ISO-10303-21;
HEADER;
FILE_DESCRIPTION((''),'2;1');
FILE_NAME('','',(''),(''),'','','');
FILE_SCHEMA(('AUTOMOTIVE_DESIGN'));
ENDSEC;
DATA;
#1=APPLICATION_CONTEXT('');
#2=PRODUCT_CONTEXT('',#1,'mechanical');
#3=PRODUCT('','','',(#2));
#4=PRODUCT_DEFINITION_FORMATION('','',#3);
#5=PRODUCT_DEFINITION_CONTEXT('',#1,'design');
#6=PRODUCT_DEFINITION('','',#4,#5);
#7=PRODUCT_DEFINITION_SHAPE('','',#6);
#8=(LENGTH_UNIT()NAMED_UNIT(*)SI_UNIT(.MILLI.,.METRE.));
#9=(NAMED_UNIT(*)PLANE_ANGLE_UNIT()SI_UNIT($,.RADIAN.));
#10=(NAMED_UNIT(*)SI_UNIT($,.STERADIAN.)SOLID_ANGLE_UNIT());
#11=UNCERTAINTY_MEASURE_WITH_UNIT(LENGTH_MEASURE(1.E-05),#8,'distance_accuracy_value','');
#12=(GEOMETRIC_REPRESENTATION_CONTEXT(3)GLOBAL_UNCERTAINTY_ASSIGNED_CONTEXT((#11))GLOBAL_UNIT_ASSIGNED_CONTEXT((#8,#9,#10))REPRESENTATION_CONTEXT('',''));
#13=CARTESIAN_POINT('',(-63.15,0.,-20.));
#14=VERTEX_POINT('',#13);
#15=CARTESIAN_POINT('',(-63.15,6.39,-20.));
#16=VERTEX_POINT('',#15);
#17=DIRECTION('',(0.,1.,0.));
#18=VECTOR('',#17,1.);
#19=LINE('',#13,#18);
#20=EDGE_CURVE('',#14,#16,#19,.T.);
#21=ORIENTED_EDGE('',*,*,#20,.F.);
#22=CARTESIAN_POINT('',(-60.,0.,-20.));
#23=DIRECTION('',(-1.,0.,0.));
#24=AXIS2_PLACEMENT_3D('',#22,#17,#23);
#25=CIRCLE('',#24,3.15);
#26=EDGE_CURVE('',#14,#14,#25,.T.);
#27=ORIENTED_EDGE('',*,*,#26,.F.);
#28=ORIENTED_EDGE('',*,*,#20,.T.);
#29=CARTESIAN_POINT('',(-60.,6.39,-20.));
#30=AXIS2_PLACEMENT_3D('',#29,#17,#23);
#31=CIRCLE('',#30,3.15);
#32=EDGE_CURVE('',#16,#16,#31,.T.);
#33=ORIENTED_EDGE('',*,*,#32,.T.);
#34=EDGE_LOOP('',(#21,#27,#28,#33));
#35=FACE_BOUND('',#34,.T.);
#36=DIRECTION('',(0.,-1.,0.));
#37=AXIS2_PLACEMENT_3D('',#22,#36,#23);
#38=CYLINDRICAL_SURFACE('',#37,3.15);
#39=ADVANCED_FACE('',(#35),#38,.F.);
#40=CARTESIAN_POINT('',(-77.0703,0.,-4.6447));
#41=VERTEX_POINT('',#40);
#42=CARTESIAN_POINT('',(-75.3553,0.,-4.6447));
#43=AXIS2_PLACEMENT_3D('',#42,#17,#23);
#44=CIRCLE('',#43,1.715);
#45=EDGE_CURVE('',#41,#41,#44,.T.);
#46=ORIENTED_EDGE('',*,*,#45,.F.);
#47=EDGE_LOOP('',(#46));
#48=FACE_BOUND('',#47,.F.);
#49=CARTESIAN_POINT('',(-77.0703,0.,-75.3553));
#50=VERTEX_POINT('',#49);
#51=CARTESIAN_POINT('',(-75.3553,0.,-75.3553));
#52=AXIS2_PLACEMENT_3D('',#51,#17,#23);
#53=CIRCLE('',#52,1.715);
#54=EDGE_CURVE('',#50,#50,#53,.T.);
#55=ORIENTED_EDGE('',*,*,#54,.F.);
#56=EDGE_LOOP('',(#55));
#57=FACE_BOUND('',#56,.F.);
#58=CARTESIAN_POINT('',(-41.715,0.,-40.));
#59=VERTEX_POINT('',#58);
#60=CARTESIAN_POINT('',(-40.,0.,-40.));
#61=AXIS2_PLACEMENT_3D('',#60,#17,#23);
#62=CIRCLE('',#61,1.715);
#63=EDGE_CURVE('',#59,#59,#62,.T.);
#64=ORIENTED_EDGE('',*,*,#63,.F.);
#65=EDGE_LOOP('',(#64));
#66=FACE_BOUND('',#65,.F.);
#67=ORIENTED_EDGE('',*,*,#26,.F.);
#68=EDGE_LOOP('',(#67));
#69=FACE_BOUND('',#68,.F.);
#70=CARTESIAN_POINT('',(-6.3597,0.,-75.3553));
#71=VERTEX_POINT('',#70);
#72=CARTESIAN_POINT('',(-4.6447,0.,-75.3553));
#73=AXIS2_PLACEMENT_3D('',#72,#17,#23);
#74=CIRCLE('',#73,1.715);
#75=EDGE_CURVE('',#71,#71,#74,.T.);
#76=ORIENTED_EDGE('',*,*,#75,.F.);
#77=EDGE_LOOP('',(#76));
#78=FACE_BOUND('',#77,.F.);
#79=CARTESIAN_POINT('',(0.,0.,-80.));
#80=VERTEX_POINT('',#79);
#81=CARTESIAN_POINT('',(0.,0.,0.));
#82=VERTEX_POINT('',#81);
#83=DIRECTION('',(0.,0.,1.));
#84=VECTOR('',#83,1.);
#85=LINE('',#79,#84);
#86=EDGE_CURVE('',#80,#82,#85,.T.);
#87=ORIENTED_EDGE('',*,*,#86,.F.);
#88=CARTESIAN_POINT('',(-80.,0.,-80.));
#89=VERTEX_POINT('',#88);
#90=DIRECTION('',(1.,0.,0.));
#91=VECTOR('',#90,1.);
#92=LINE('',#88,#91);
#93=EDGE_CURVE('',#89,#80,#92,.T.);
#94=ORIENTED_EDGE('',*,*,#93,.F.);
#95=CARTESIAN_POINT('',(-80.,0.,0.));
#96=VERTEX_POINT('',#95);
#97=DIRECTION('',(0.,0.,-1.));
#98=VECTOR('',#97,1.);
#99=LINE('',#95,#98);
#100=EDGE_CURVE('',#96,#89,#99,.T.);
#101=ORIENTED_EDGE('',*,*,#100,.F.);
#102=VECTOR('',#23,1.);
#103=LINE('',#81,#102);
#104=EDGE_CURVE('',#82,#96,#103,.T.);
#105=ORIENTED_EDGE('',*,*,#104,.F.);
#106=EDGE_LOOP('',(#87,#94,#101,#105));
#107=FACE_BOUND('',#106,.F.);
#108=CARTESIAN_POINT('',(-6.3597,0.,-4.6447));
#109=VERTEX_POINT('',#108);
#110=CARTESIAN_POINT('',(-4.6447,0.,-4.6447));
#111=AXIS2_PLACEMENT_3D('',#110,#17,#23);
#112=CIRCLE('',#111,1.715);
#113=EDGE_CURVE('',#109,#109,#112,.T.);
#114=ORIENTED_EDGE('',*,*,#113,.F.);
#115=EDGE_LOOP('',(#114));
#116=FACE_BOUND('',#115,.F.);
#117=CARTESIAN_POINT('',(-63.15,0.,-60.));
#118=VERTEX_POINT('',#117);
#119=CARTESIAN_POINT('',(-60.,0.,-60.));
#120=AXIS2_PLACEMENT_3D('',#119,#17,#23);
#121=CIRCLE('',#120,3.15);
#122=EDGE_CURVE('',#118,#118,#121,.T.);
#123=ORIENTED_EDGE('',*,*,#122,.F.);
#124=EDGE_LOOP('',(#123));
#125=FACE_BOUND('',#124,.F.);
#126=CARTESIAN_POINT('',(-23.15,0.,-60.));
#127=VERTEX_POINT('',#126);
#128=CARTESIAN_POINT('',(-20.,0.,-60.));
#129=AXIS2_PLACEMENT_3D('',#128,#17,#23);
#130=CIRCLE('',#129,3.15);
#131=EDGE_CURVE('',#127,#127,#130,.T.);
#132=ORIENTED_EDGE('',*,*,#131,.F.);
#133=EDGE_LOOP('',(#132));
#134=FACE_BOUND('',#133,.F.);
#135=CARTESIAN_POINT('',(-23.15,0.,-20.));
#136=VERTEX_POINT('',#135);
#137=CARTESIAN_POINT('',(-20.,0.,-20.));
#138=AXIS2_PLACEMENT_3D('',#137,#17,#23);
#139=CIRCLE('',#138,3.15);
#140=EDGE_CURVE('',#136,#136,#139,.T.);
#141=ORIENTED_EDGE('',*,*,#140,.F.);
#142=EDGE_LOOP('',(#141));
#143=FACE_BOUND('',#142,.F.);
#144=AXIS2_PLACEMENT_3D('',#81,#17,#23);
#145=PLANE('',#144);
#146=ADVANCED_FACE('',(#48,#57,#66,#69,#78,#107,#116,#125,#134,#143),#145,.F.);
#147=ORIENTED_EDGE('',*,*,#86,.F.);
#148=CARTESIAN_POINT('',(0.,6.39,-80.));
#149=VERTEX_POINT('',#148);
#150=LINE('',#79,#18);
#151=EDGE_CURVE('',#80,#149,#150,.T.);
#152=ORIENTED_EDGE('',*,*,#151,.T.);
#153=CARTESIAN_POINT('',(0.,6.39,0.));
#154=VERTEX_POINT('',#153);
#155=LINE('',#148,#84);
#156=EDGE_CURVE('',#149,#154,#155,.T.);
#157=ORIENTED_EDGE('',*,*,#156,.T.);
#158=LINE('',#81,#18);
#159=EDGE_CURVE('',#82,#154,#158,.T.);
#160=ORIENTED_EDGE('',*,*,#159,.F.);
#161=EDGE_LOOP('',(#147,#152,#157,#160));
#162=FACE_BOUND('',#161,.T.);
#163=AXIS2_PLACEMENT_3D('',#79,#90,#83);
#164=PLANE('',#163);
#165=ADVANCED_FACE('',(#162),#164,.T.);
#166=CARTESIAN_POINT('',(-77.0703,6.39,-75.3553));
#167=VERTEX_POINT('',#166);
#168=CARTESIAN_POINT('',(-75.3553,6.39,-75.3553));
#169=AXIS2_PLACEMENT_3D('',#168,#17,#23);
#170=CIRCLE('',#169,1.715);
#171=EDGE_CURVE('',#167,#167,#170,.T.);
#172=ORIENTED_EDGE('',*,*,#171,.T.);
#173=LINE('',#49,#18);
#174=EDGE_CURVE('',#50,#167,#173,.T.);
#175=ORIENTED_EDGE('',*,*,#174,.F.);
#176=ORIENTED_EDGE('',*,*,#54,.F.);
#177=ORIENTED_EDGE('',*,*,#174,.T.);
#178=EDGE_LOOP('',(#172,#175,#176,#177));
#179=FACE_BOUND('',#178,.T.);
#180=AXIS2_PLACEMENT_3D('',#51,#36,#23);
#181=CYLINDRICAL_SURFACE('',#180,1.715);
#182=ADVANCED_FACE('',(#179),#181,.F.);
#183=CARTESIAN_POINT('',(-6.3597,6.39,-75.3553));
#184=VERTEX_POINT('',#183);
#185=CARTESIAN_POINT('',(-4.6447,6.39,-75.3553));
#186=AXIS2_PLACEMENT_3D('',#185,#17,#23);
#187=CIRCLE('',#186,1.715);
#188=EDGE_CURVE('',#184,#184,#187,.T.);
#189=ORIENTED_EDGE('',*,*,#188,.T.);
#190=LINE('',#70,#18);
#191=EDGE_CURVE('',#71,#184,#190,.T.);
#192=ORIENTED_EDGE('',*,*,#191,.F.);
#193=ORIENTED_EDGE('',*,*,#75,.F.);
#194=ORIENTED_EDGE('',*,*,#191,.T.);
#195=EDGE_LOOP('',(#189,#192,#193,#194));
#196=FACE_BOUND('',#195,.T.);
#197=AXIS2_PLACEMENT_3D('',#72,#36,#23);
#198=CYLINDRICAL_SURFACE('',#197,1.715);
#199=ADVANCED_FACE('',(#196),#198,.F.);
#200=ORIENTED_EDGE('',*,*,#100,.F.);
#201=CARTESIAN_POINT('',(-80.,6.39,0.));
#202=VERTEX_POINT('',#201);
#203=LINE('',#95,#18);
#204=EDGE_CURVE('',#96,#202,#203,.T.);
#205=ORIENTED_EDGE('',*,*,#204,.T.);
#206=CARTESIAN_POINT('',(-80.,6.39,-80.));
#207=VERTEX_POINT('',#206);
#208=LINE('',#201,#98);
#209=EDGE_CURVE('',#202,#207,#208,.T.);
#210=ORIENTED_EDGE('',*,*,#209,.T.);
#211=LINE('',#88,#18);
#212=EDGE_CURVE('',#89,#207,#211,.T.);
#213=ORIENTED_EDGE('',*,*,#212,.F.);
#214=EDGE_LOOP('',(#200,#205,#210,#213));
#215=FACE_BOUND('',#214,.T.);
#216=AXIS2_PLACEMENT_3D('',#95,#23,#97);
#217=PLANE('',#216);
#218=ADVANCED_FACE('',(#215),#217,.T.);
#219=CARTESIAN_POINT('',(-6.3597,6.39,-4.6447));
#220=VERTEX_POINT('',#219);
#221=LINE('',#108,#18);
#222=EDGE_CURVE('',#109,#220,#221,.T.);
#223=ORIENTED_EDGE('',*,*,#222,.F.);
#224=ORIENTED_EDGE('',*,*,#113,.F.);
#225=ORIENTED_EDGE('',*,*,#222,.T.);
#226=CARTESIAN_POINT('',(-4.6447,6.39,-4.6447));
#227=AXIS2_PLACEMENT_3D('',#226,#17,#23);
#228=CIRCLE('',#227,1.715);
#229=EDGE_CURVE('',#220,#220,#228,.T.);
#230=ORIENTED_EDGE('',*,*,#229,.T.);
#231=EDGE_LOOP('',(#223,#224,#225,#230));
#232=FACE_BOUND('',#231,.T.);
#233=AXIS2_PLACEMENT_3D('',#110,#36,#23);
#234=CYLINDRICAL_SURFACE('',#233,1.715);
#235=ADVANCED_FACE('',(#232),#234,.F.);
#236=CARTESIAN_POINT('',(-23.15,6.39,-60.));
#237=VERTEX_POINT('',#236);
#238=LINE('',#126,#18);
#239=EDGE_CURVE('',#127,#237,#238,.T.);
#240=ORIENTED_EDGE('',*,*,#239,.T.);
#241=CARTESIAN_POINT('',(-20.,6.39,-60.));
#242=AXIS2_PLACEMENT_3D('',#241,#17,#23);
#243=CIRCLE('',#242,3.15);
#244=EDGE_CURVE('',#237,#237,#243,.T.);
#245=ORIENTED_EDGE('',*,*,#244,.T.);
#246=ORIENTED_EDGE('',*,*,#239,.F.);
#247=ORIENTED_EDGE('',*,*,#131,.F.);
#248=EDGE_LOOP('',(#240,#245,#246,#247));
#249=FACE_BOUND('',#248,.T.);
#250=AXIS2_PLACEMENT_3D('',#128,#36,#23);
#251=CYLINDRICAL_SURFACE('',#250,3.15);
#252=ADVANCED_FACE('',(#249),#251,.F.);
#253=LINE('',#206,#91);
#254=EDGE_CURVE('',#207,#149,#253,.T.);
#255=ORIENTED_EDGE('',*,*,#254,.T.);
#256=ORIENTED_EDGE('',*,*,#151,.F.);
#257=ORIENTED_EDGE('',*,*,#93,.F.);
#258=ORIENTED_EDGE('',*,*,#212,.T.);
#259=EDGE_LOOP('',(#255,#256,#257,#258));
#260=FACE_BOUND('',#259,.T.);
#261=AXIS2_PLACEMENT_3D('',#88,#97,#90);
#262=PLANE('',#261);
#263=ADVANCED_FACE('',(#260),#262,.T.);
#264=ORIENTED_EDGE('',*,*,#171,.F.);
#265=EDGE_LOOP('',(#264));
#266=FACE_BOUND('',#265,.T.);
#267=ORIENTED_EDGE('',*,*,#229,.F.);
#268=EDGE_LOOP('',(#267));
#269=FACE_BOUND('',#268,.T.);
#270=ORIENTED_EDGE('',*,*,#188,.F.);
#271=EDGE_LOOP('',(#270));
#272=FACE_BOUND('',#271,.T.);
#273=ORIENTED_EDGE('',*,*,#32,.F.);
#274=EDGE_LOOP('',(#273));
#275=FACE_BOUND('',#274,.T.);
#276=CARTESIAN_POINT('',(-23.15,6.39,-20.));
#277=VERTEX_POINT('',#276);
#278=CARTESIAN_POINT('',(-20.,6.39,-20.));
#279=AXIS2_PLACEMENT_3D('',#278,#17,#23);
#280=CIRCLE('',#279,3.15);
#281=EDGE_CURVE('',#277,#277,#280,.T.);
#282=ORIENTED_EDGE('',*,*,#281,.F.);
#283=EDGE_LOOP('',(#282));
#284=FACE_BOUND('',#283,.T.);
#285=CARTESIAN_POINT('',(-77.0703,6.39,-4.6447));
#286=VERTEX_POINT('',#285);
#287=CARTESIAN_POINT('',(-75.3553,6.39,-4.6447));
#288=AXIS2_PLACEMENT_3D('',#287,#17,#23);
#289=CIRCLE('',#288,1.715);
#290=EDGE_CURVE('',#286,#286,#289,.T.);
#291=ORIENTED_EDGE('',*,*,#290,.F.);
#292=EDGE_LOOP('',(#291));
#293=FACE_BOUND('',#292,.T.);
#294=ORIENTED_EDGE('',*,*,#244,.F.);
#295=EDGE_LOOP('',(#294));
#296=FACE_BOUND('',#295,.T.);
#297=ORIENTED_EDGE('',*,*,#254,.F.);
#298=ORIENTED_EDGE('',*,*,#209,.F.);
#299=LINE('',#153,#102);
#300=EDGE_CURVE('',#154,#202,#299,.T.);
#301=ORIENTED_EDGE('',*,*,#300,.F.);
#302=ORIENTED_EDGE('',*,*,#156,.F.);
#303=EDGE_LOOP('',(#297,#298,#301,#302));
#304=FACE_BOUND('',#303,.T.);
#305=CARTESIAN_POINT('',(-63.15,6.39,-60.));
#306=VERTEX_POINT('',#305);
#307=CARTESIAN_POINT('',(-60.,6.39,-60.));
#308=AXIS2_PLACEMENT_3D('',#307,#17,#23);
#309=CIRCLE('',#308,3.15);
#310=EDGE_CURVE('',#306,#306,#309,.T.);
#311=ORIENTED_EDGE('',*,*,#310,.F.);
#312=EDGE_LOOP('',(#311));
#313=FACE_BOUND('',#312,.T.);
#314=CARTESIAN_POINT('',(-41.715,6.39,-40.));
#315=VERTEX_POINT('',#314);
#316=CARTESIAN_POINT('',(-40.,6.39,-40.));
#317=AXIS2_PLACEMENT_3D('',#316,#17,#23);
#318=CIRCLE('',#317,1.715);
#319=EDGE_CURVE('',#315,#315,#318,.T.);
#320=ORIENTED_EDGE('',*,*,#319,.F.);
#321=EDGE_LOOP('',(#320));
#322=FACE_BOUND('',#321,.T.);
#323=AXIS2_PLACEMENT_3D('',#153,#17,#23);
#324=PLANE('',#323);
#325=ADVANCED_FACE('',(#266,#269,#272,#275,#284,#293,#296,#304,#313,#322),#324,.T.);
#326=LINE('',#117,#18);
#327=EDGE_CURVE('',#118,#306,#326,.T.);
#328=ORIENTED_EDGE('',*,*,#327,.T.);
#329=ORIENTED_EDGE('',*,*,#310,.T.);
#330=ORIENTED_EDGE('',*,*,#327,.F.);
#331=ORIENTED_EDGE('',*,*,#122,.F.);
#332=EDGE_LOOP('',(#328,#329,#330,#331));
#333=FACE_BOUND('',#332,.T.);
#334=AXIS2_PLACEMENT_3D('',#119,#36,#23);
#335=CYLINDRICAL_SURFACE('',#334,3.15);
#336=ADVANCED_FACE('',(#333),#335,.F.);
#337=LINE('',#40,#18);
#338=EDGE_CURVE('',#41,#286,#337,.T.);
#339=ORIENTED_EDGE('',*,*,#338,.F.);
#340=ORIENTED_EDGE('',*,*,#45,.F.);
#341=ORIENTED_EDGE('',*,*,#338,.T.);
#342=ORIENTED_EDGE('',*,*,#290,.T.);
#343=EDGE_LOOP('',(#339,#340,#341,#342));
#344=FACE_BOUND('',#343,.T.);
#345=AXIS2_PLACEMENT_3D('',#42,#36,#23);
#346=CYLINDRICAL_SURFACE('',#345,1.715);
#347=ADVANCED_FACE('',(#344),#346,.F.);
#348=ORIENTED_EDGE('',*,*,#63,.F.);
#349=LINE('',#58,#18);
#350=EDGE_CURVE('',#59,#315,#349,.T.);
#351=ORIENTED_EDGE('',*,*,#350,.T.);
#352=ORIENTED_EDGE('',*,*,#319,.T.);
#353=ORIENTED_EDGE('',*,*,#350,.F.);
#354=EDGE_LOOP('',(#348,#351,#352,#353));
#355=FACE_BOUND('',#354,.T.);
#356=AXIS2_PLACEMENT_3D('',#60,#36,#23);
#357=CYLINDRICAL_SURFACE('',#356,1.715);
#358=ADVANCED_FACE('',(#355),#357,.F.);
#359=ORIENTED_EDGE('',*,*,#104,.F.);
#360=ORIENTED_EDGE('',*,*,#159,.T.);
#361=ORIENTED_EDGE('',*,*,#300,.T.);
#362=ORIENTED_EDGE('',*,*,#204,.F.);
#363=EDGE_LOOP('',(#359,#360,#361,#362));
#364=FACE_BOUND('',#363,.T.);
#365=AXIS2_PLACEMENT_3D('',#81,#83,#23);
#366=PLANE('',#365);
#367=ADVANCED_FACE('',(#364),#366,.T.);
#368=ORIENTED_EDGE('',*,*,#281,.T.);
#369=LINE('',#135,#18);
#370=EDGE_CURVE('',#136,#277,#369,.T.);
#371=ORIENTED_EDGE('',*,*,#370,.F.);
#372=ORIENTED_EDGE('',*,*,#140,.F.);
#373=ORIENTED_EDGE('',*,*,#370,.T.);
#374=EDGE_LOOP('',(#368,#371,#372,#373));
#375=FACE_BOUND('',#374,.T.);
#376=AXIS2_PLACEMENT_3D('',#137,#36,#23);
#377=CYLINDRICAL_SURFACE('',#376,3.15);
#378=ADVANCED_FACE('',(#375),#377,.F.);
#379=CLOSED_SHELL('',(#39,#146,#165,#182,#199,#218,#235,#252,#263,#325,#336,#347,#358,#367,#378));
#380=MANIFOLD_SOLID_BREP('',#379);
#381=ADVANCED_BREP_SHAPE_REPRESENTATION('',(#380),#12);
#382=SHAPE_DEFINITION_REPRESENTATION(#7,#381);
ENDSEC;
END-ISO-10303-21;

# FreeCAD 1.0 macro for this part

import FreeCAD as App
import Part
import Sketcher

V = App.Vector


def add_polygon(sketch, points):
    """Adds a closed chain of lines whose ends are joined by coincident constraints."""
    first, n = sketch.GeometryCount, len(points)
    for a, b in zip(points, points[1:] + points[:1]):
        sketch.addGeometry(Part.LineSegment(App.Vector(*a, 0), App.Vector(*b, 0)), False)
    for i in range(n):
        sketch.addConstraint(Sketcher.Constraint("Coincident", first + i, 2, first + (i + 1) % n, 1))

doc = App.newDocument("Part")
body = doc.addObject("PartDesign::Body", "Body")

# Sketch on XZ plane
sketch1 = body.newObject("Sketcher::SketchObject", "Sketch")
sketch1.AttachmentSupport = (doc.getObject("XZ_Plane"), [""])
sketch1.MapMode = "FlatFace"
add_polygon(sketch1, [(-80, 0), (0, 0), (0, -80), (-80, -80)])  # lines 0-3
sketch1.addGeometry(Part.Circle(V(-4.6, -75.4, 0), V(0, 0, 1), 1.7), False)  # 4
sketch1.addGeometry(Part.Circle(V(-20, -60, 0), V(0, 0, 1), 3.1), False)  # 5
sketch1.addGeometry(Part.Circle(V(-75.4, -75.4, 0), V(0, 0, 1), 1.7), False)  # 6
sketch1.addGeometry(Part.Circle(V(-60, -60, 0), V(0, 0, 1), 3.1), False)  # 7
sketch1.addGeometry(Part.Circle(V(-4.6, -4.6, 0), V(0, 0, 1), 1.7), False)  # 8
sketch1.addGeometry(Part.Circle(V(-20, -20, 0), V(0, 0, 1), 3.1), False)  # 9
sketch1.addGeometry(Part.Circle(V(-40, -40, 0), V(0, 0, 1), 1.7), False)  # 10
sketch1.addGeometry(Part.Circle(V(-60, -20, 0), V(0, 0, 1), 3.1), False)  # 11
sketch1.addGeometry(Part.Circle(V(-75.4, -4.6, 0), V(0, 0, 1), 1.7), False)  # 12
sketch1.addConstraint([
    Sketcher.Constraint("Horizontal", 0),
    Sketcher.Constraint("Vertical", 1),
    Sketcher.Constraint("Horizontal", 2),
    Sketcher.Constraint("Vertical", 3),
    Sketcher.Constraint("Coincident", 0, 2, -1, 1),
    Sketcher.Constraint("Equal", 4, 6),
    Sketcher.Constraint("Equal", 5, 7),
    Sketcher.Constraint("Equal", 6, 8),
    Sketcher.Constraint("Equal", 7, 9),
    Sketcher.Constraint("Equal", 8, 10),
    Sketcher.Constraint("Equal", 9, 11),
    Sketcher.Constraint("Equal", 10, 12),
    Sketcher.Constraint("Horizontal", 4, 3, 6, 3),
    Sketcher.Constraint("Horizontal", 5, 3, 7, 3),
    Sketcher.Constraint("Horizontal", 9, 3, 11, 3),
    Sketcher.Constraint("Horizontal", 8, 3, 12, 3),
    Sketcher.Constraint("Vertical", 4, 3, 8, 3),
    Sketcher.Constraint("Vertical", 5, 3, 9, 3),
    Sketcher.Constraint("Vertical", 7, 3, 11, 3),
    Sketcher.Constraint("Vertical", 6, 3, 12, 3),
    Sketcher.Constraint("Equal", 2, 1),
    Sketcher.Constraint("Diameter", 5, 6.3),
    Sketcher.Constraint("Diameter", 4, 3.43),
    Sketcher.Constraint("DistanceX", 0, 1, 0, 2, 80.0),
    Sketcher.Constraint("DistanceX", 5, 3, -1, 1, 20.0),
    Sketcher.Constraint("DistanceY", 5, 3, -1, 1, 60.0),
    Sketcher.Constraint("DistanceX", 7, 3, -1, 1, 60.0),
    Sketcher.Constraint("DistanceY", 9, 3, -1, 1, 20.0),
    Sketcher.Constraint("DistanceX", 10, 3, -1, 1, 40.0),
    Sketcher.Constraint("DistanceY", 10, 3, -1, 1, 40.0),
    Sketcher.Constraint("DistanceX", 4, 3, -1, 1, 4.6447),
    Sketcher.Constraint("DistanceY", 4, 3, -1, 1, 75.3553),
    Sketcher.Constraint("DistanceX", 6, 3, -1, 1, 75.3553),
    Sketcher.Constraint("DistanceY", 8, 3, -1, 1, 4.6447),
])
pad1 = body.newObject("PartDesign::Pad", "Pad")
pad1.Profile = sketch1
pad1.Length = 6.39
pad1.Reversed = True

doc.recompute()
